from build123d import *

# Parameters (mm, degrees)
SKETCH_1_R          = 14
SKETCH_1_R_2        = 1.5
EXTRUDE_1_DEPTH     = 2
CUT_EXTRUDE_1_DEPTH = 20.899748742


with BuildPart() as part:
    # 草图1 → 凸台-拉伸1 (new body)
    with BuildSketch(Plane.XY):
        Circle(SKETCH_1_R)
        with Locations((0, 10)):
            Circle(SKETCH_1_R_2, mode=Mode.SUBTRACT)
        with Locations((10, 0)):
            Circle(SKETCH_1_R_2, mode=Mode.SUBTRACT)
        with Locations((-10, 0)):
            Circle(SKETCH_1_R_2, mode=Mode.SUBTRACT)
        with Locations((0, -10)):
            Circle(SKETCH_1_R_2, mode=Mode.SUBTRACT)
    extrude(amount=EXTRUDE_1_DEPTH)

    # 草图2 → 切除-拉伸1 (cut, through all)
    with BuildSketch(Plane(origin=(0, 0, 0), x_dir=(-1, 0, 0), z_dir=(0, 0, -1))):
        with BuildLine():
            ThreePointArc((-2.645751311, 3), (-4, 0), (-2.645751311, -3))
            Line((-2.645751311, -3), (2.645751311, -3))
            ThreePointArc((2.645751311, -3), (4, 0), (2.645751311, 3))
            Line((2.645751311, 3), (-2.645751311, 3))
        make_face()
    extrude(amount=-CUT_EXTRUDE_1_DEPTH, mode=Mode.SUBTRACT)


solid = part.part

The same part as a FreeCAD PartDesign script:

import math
import FreeCAD as App
import Part
import Sketcher
from FreeCAD import Vector
Q = App.Units.Quantity

doc = App.newDocument("Part")
params = doc.addObject("Spreadsheet::Sheet", "Params")
for row, (alias, value) in enumerate([
    ("sketch1_diameter", "28 mm"),
    ("sketch1_diameter2", "3 mm"),
    ("pad1_length", "2 mm"),
    ("sketch2_radius", "4 mm"),
], start=1):
    params.set(f"A{row}", alias)
    params.set(f"B{row}", "=" + value)
    params.setAlias(f"B{row}", alias)

body = doc.addObject("PartDesign::Body", "Body")

# Sketch on XY plane
sketch1 = body.newObject("Sketcher::SketchObject", "Sketch")
sketch1.AttachmentSupport = (doc.getObject("XY_Plane"), [""])
sketch1.MapMode = "FlatFace"
sketch1.addGeometry([
    Part.Circle(Vector(0, 0, 0), Vector(0, 0, 1), 14),  # 0
    Part.Circle(Vector(0, -10, 0), Vector(0, 0, 1), 1.5),  # 1
    Part.Circle(Vector(-10, 0, 0), Vector(0, 0, 1), 1.5),  # 2
    Part.Circle(Vector(10, 0, 0), Vector(0, 0, 1), 1.5),  # 3
    Part.Circle(Vector(0, 10, 0), Vector(0, 0, 1), 1.5),  # 4
], False)
sketch1.addConstraint([
    Sketcher.Constraint("Coincident", 0, 3, -1, 1),
    Sketcher.Constraint("Equal", 1, 2),
    Sketcher.Constraint("Equal", 2, 3),
    Sketcher.Constraint("Equal", 3, 4),
    Sketcher.Constraint("Symmetric", 2, 3, 3, 3, -1, 1),
    Sketcher.Constraint("Symmetric", 1, 3, 4, 3, -1, 1),
    Sketcher.Constraint("PointOnObject", 1, 3, -2),
    Sketcher.Constraint("PointOnObject", 2, 3, -1),
    Sketcher.Constraint("Diameter", 0, Q("28 mm")),
    Sketcher.Constraint("Diameter", 1, Q("3 mm")),
    Sketcher.Constraint("DistanceY", 1, 3, -1, 1, Q("10 mm")),
    Sketcher.Constraint("DistanceX", 2, 3, -1, 1, Q("10 mm")),
])
sketch1.setExpression("Constraints[8]", "Params.sketch1_diameter")
sketch1.setExpression("Constraints[9]", "Params.sketch1_diameter2")
pad1 = body.newObject("PartDesign::Pad", "Pad")
pad1.Profile = sketch1
pad1.setExpression("Length", "Params.pad1_length")

# Sketch on XY plane
sketch2 = body.newObject("Sketcher::SketchObject", "Sketch001")
sketch2.AttachmentSupport = (doc.getObject("XY_Plane"), [""])
sketch2.MapMode = "FlatFace"
sketch2.addGeometry([
    Part.ArcOfCircle(Part.Circle(Vector(0, 0, 0), Vector(0, 0, 1), 4), math.radians(-49), math.radians(49)),
    Part.LineSegment(Vector(2.6, -3, 0), Vector(-2.6, -3, 0)),
    Part.ArcOfCircle(Part.Circle(Vector(0, 0, 0), Vector(0, 0, 1), 4), math.radians(131), math.radians(229)),
    Part.LineSegment(Vector(-2.6, 3, 0), Vector(2.6, 3, 0)),
], False)
sketch2.addConstraint([
    Sketcher.Constraint("Coincident", 0, 1, 1, 1),
    Sketcher.Constraint("Coincident", 1, 2, 2, 2),
    Sketcher.Constraint("Coincident", 2, 1, 3, 1),
    Sketcher.Constraint("Coincident", 3, 2, 0, 2),
    Sketcher.Constraint("Horizontal", 1),
    Sketcher.Constraint("Horizontal", 3),
    Sketcher.Constraint("Coincident", 0, 3, -1, 1),
    Sketcher.Constraint("Coincident", 2, 3, -1, 1),
    Sketcher.Constraint("Equal", 0, 2),
    Sketcher.Constraint("Vertical", 1, 2, 2, 1),
    Sketcher.Constraint("Radius", 0, Q("4 mm")),
    Sketcher.Constraint("DistanceY", 0, 1, -1, 1, Q("3 mm")),
])
sketch2.setExpression("Constraints[10]", "Params.sketch2_radius")
pocket1 = body.newObject("PartDesign::Pocket", "Pocket")
pocket1.Profile = sketch2
pocket1.Type = "ThroughAll"
pocket1.Reversed = True

doc.recompute()
